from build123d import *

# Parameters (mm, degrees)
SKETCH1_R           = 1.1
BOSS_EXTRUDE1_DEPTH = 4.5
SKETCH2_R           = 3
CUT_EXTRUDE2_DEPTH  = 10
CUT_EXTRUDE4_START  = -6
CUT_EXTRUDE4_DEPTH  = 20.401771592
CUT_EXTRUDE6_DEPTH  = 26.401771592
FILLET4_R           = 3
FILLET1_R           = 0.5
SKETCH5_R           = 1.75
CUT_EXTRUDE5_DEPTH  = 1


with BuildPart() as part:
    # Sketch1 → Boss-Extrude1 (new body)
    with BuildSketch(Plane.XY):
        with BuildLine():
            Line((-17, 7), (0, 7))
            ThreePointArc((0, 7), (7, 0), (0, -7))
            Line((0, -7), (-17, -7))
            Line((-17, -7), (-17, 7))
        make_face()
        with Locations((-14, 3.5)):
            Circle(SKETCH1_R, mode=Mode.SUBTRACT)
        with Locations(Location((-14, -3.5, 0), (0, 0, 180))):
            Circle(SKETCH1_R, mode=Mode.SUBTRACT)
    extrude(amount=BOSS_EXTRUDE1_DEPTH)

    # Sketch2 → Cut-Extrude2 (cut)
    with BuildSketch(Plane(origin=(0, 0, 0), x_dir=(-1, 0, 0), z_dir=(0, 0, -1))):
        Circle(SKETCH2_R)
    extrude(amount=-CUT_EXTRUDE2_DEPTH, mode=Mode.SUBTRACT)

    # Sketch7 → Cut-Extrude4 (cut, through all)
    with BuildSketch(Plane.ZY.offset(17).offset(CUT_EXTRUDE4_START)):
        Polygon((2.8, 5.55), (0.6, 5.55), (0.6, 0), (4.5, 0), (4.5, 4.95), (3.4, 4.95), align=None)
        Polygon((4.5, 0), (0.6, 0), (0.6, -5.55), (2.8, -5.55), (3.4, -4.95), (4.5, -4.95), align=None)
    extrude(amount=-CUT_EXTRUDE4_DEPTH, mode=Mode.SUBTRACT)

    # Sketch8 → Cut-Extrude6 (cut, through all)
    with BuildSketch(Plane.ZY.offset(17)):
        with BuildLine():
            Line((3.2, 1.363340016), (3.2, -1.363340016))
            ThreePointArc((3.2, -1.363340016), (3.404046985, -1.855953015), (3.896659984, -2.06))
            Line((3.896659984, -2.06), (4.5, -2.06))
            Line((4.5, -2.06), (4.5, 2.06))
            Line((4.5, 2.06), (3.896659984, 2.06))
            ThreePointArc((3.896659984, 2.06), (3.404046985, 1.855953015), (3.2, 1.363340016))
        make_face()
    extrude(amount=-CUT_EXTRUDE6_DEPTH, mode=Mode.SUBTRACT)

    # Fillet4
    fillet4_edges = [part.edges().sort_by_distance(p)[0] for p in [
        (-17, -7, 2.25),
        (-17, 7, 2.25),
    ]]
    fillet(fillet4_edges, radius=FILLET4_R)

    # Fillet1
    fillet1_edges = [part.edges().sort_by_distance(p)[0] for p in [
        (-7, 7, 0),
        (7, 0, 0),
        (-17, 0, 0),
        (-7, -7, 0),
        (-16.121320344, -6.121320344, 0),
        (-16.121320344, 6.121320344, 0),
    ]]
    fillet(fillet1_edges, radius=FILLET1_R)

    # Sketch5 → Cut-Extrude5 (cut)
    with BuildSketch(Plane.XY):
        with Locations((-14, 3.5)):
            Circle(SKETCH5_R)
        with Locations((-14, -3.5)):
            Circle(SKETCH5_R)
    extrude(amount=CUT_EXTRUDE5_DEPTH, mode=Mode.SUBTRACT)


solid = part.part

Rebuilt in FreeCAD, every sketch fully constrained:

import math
import FreeCAD as App
import Part
import Sketcher

V = App.Vector


def edges_at(feature, points):
    """Names of the edges that pass closest to the given points."""
    edges = feature.Shape.Edges
    near = lambda p: min(range(len(edges)), key=lambda i: edges[i].distToShape(Part.Vertex(*p))[0])
    return sorted({f"Edge{near(p) + 1}" for p in points})

doc = App.newDocument("Part")
params = doc.addObject("Spreadsheet::Sheet", "Params")
for row, (alias, value) in enumerate([
    ("sketch1_radius", "7 mm"),
    ("sketch1_diameter", "2.2 mm"),
    ("sketch1_width", "17 mm"),
    ("pad1_length", "4.5 mm"),
    ("sketch2_diameter", "6 mm"),
    ("pocket1_length", "10 mm"),
    ("sketch3_width", "11.1 mm"),
    ("sketch3_width2", "9.9 mm"),
    ("sketch3_height", "2.2 mm"),
    ("sketch3_height2", "1.1 mm"),
    ("sketch4_width", "4.12 mm"),
    ("fillet_radius", "3 mm"),
    ("fillet2_radius", "0.5 mm"),
    ("sketch5_diameter", "3.5 mm"),
    ("pocket4_length", "1 mm"),
], start=1):
    params.set(f"A{row}", alias)
    params.set(f"B{row}", "=" + value)
    params.setAlias(f"B{row}", alias)

body = doc.addObject("PartDesign::Body", "Body")

# Sketch on XY plane
sketch1 = doc.addObject("Sketcher::SketchObject", "Sketch")
body.addObject(sketch1)
sketch1.AttachmentSupport = (doc.XY_Plane, [""])
sketch1.MapMode = "FlatFace"
sketch1.addGeometry([
    Part.LineSegment(V(0, 7, 0), V(-17, 7, 0)),  # 0
    Part.LineSegment(V(-17, 7, 0), V(-17, -7, 0)),  # 1
    Part.LineSegment(V(-17, -7, 0), V(0, -7, 0)),  # 2
    Part.ArcOfCircle(Part.Circle(V(0, 0, 0), V(0, 0, 1), 7), math.radians(-90), math.radians(90)),  # 3
    Part.Circle(V(-14, -3.5, 0), V(0, 0, 1), 1.1),  # 4
    Part.Circle(V(-14, 3.5, 0), V(0, 0, 1), 1.1),  # 5
], False)
sketch1.addConstraint([
    Sketcher.Constraint("Coincident", 0, 2, 1, 1),
    Sketcher.Constraint("Coincident", 1, 2, 2, 1),
    Sketcher.Constraint("Tangent", 2, 2, 3, 1),
    Sketcher.Constraint("Tangent", 3, 2, 0, 1),
    Sketcher.Constraint("Horizontal", 0),
    Sketcher.Constraint("Vertical", 1),
    Sketcher.Constraint("Horizontal", 2),
    Sketcher.Constraint("Coincident", 3, 3, -1, 1),
    Sketcher.Constraint("Equal", 4, 5),
    Sketcher.Constraint("Symmetric", 4, 3, 5, 3, -1),
    Sketcher.Constraint("Radius", 3, 7.0),
    Sketcher.Constraint("Diameter", 4, 2.2),
    Sketcher.Constraint("DistanceX", 0, 2, 0, 1, 17.0),
    Sketcher.Constraint("DistanceX", 4, 3, -1, 1, 14.0),
    Sketcher.Constraint("DistanceY", 4, 3, 5, 3, 7.0),
])
sketch1.setExpression("Constraints[10]", "Params.sketch1_radius")
sketch1.setExpression("Constraints[11]", "Params.sketch1_diameter")
sketch1.setExpression("Constraints[12]", "Params.sketch1_width")
pad1 = doc.addObject("PartDesign::Pad", "Pad")
body.addObject(pad1)
pad1.Profile = sketch1
pad1.setExpression("Length", "Params.pad1_length")

# Sketch on XY plane
sketch2 = doc.addObject("Sketcher::SketchObject", "Sketch001")
body.addObject(sketch2)
sketch2.AttachmentSupport = (doc.XY_Plane, [""])
sketch2.MapMode = "FlatFace"
sketch2.addGeometry(Part.Circle(V(0, 0, 0), V(0, 0, 1), 3), False)
sketch2.addConstraint([
    Sketcher.Constraint("Coincident", 0, 3, -1, 1),
    Sketcher.Constraint("Diameter", 0, 6.0),
])
sketch2.setExpression("Constraints[1]", "Params.sketch2_diameter")
pocket1 = doc.addObject("PartDesign::Pocket", "Pocket")
body.addObject(pocket1)
pocket1.Profile = sketch2
pocket1.setExpression("Length", "Params.pocket1_length")
pocket1.Reversed = True

# Sketch on YZ plane
sketch3 = doc.addObject("Sketcher::SketchObject", "Sketch002")
body.addObject(sketch3)
sketch3.AttachmentSupport = (doc.YZ_Plane, [""])
sketch3.MapMode = "FlatFace"
sketch3.AttachmentOffset = App.Placement(V(0, 0, -11), App.Rotation())
sketch3.addGeometry([
    Part.LineSegment(V(5.5, 2.8, 0), V(5.5, 0.6, 0)),  # 0
    Part.LineSegment(V(5.5, 0.6, 0), V(-5.5, 0.6, 0)),  # 1
    Part.LineSegment(V(-5.5, 0.6, 0), V(-5.5, 2.8, 0)),  # 2
    Part.LineSegment(V(-5.5, 2.8, 0), V(-5, 3.4, 0)),  # 3
    Part.LineSegment(V(-5, 3.4, 0), V(-5, 4.5, 0)),  # 4
    Part.LineSegment(V(-5, 4.5, 0), V(5, 4.5, 0)),  # 5
    Part.LineSegment(V(5, 4.5, 0), V(5, 3.4, 0)),  # 6
    Part.LineSegment(V(5, 3.4, 0), V(5.5, 2.8, 0)),  # 7
], False)
sketch3.addConstraint([
    Sketcher.Constraint("Coincident", 0, 2, 1, 1),
    Sketcher.Constraint("Coincident", 1, 2, 2, 1),
    Sketcher.Constraint("Coincident", 2, 2, 3, 1),
    Sketcher.Constraint("Coincident", 3, 2, 4, 1),
    Sketcher.Constraint("Coincident", 4, 2, 5, 1),
    Sketcher.Constraint("Coincident", 5, 2, 6, 1),
    Sketcher.Constraint("Coincident", 6, 2, 7, 1),
    Sketcher.Constraint("Coincident", 7, 2, 0, 1),
    Sketcher.Constraint("Vertical", 0),
    Sketcher.Constraint("Horizontal", 1),
    Sketcher.Constraint("Vertical", 2),
    Sketcher.Constraint("Vertical", 4),
    Sketcher.Constraint("Horizontal", 5),
    Sketcher.Constraint("Vertical", 6),
    Sketcher.Constraint("Symmetric", 3, 2, 6, 2, -2),
    Sketcher.Constraint("Symmetric", 2, 2, 7, 2, -2),
    Sketcher.Constraint("Perpendicular", 3, 7),
    Sketcher.Constraint("DistanceX", 1, 2, 1, 1, 11.1),
    Sketcher.Constraint("DistanceX", 5, 1, 5, 2, 9.9),
    Sketcher.Constraint("DistanceY", 0, 2, 0, 1, 2.2),
    Sketcher.Constraint("DistanceY", 4, 1, 4, 2, 1.1),
    Sketcher.Constraint("DistanceY", -1, 1, 0, 2, 0.6),
])
sketch3.setExpression("Constraints[17]", "Params.sketch3_width")
sketch3.setExpression("Constraints[18]", "Params.sketch3_width2")
sketch3.setExpression("Constraints[19]", "Params.sketch3_height")
sketch3.setExpression("Constraints[20]", "Params.sketch3_height2")
pocket2 = doc.addObject("PartDesign::Pocket", "Pocket001")
body.addObject(pocket2)
pocket2.Profile = sketch3
pocket2.Type = "ThroughAll"
pocket2.Reversed = True

# Sketch on YZ plane
sketch4 = doc.addObject("Sketcher::SketchObject", "Sketch003")
body.addObject(sketch4)
sketch4.AttachmentSupport = (doc.YZ_Plane, [""])
sketch4.MapMode = "FlatFace"
sketch4.AttachmentOffset = App.Placement(V(0, 0, -17), App.Rotation())
sketch4.addGeometry([
    Part.LineSegment(V(1.4, 3.2, 0), V(-1.4, 3.2, 0)),  # 0
    Part.ArcOfCircle(Part.Circle(V(-1.4, 3.9, 0), V(0, 0, 1), 0.7), math.radians(180), math.radians(270)),  # 1
    Part.LineSegment(V(-2.1, 3.9, 0), V(-2.1, 4.5, 0)),  # 2
    Part.LineSegment(V(-2.1, 4.5, 0), V(2.1, 4.5, 0)),  # 3
    Part.LineSegment(V(2.1, 4.5, 0), V(2.1, 3.9, 0)),  # 4
    Part.ArcOfCircle(Part.Circle(V(1.4, 3.9, 0), V(0, 0, 1), 0.7), math.radians(-90), math.radians(0)),  # 5
], False)
sketch4.addConstraint([
    Sketcher.Constraint("Tangent", 0, 2, 1, 2),
    Sketcher.Constraint("Tangent", 1, 1, 2, 1),
    Sketcher.Constraint("Coincident", 2, 2, 3, 1),
    Sketcher.Constraint("Coincident", 3, 2, 4, 1),
    Sketcher.Constraint("Tangent", 4, 2, 5, 2),
    Sketcher.Constraint("Tangent", 5, 1, 0, 1),
    Sketcher.Constraint("Horizontal", 0),
    Sketcher.Constraint("Vertical", 2),
    Sketcher.Constraint("Horizontal", 3),
    Sketcher.Constraint("Vertical", 4),
    Sketcher.Constraint("Equal", 1, 5),
    Sketcher.Constraint("DistanceX", 3, 1, 3, 2, 4.12),
    Sketcher.Constraint("DistanceY", -1, 1, 0, 2, 3.2),
    Sketcher.Constraint("DistanceY", -1, 1, 2, 2, 4.5),
    Sketcher.Constraint("DistanceX", 1, 1, -1, 1, 2.06),
    Sketcher.Constraint("Radius", 1, 0.69666),
])
sketch4.setExpression("Constraints[11]", "Params.sketch4_width")
pocket3 = doc.addObject("PartDesign::Pocket", "Pocket002")
body.addObject(pocket3)
pocket3.Profile = sketch4
pocket3.Type = "ThroughAll"
pocket3.Reversed = True
doc.recompute()

fillet = doc.addObject("PartDesign::Fillet", "Fillet")
body.addObject(fillet)
fillet.Base = (pocket3, edges_at(pocket3, [(-17, -7, 2.25), (-17, 7, 2.25)]))
fillet.setExpression("Radius", "Params.fillet_radius")
doc.recompute()

fillet2 = doc.addObject("PartDesign::Fillet", "Fillet001")
body.addObject(fillet2)
fillet2.Base = (fillet, edges_at(fillet, [
    (-7, 7, 0),
    (7, 0, 0),
    (-17, 0, 0),
    (-7, -7, 0),
    (-16.121, -6.121, 0),
    (-16.121, 6.121, 0),
]))
fillet2.setExpression("Radius", "Params.fillet2_radius")

# Sketch on XY plane
sketch5 = doc.addObject("Sketcher::SketchObject", "Sketch004")
body.addObject(sketch5)
sketch5.AttachmentSupport = (doc.XY_Plane, [""])
sketch5.MapMode = "FlatFace"
sketch5.addGeometry([
    Part.Circle(V(-14, 3.5, 0), V(0, 0, 1), 1.8),
    Part.Circle(V(-14, -3.5, 0), V(0, 0, 1), 1.8),
], False)
sketch5.addConstraint([
    Sketcher.Constraint("Equal", 0, 1),
    Sketcher.Constraint("Symmetric", 0, 3, 1, 3, -1),
    Sketcher.Constraint("Diameter", 0, 3.5),
    Sketcher.Constraint("DistanceX", 0, 3, -1, 1, 14.0),
    Sketcher.Constraint("DistanceY", 1, 3, 0, 3, 7.0),
])
sketch5.setExpression("Constraints[2]", "Params.sketch5_diameter")
pocket4 = doc.addObject("PartDesign::Pocket", "Pocket003")
body.addObject(pocket4)
pocket4.Profile = sketch5
pocket4.setExpression("Length", "Params.pocket4_length")
pocket4.Reversed = True

doc.recompute()
